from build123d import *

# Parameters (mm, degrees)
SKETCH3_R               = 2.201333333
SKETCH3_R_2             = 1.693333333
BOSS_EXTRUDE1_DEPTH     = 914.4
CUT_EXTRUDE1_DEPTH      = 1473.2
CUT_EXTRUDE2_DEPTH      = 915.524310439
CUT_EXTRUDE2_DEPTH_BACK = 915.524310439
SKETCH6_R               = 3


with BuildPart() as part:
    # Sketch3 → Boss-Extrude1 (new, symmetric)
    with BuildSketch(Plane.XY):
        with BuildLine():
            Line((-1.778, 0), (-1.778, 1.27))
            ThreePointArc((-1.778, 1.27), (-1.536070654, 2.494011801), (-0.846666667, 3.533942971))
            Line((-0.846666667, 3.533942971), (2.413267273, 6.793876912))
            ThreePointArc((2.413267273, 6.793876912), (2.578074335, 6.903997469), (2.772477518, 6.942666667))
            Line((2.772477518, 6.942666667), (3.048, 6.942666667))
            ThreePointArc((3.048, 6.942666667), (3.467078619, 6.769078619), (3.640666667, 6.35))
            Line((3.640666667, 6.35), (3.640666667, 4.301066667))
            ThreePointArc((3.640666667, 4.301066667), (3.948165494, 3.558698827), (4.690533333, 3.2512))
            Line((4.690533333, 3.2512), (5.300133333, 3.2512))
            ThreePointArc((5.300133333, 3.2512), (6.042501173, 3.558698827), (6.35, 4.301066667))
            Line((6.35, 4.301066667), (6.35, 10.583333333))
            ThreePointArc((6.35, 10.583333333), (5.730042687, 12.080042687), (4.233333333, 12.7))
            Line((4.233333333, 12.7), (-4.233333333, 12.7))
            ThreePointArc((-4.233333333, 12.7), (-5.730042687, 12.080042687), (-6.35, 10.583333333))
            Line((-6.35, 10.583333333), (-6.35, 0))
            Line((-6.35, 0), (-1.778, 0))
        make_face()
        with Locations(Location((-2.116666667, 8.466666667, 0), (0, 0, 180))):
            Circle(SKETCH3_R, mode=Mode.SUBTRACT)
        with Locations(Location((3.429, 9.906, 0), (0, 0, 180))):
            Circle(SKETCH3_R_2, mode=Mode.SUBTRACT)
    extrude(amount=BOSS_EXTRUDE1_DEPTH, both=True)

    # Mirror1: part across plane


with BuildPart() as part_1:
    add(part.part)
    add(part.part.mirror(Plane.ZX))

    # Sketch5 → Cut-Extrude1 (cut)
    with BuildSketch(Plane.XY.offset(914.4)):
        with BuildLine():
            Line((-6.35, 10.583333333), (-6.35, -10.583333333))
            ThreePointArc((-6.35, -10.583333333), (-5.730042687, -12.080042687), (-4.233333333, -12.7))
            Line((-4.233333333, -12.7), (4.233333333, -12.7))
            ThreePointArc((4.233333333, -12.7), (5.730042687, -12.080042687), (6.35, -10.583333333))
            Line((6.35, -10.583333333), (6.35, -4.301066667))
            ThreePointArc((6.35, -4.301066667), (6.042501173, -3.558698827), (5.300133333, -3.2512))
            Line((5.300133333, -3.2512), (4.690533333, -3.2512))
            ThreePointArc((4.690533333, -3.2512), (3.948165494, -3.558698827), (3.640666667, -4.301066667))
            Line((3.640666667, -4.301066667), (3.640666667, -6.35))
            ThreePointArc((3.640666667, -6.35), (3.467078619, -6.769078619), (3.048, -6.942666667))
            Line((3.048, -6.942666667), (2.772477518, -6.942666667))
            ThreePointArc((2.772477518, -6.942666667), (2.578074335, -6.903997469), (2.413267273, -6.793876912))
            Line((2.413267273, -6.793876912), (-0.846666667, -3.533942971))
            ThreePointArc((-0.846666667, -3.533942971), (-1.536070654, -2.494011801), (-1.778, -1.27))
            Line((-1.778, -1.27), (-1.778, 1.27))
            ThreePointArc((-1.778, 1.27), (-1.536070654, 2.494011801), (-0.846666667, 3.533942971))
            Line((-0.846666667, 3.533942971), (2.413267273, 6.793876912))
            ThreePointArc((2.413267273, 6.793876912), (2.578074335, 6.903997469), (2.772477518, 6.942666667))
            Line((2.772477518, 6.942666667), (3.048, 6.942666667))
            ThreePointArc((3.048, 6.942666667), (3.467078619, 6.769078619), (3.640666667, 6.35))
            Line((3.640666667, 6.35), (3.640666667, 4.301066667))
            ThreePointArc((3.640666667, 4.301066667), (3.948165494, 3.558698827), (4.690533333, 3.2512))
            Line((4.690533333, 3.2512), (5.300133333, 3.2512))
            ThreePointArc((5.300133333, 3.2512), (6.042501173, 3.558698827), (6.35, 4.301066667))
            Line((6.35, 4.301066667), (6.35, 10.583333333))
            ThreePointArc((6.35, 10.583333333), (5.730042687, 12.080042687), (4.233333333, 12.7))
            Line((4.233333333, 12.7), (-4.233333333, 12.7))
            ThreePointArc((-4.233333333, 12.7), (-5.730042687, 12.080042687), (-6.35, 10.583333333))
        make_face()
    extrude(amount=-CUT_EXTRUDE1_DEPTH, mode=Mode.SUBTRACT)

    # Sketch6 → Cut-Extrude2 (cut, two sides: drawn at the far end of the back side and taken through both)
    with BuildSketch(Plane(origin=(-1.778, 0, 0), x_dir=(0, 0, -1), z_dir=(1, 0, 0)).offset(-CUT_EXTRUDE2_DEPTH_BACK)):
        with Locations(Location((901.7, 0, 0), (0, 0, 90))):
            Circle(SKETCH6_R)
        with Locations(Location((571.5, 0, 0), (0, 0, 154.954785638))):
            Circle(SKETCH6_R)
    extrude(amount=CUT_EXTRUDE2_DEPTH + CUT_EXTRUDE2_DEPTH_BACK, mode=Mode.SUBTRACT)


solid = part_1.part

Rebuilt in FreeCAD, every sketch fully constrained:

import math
import FreeCAD as App
import Part
import Sketcher
Q = App.Units.Quantity

doc = App.newDocument("Part")
params = doc.addObject("Spreadsheet::Sheet", "Params")
for row, (alias, value) in enumerate([
    ("sketch1_radius", "0.02 in"),
    ("sketch1_width", "0.18 in"),
    ("sketch1_height", "0.05 in"),
    ("sketch1_width2", "0.024 in"),
    ("sketch1_width3", "0.09 in"),
    ("pad1_length", "72 in"),
    ("sketch2_radius", "0.02 in"),
    ("sketch2_height", "0.1 in"),
    ("sketch2_width", "0.024 in"),
    ("pocket1_length", "58 in"),
], start=1):
    params.set(f"A{row}", alias)
    params.set(f"B{row}", "=" + value)
    params.setAlias(f"B{row}", alias)

body = doc.addObject("PartDesign::Body", "Body")

sketch1 = body.newObject("Sketcher::SketchObject", "Sketch")
sketch1.AttachmentSupport = (doc.getObject("XY_Plane"), [""])
sketch1.MapMode = "FlatFace"
sketch1.addGeometry(Part.LineSegment(App.Vector(-1.78, 0, 0), App.Vector(-1.78, 1.27, 0)), False)
sketch1.addGeometry(Part.ArcOfCircle(Part.Circle(App.Vector(1.44, 1.27, 0), App.Vector(0, 0, 1), 3.22), math.radians(135), math.radians(180)), False)
sketch1.addGeometry(Part.LineSegment(App.Vector(-0.85, 3.53, 0), App.Vector(2.41, 6.79, 0)), False)
sketch1.addGeometry(Part.ArcOfCircle(Part.Circle(App.Vector(2.77, 6.43, 0), App.Vector(0, 0, 1), 0.51), math.radians(90), math.radians(135)), False)
sketch1.addGeometry(Part.LineSegment(App.Vector(2.77, 6.94, 0), App.Vector(3.05, 6.94, 0)), False)
sketch1.addGeometry(Part.ArcOfCircle(Part.Circle(App.Vector(3.05, 6.35, 0), App.Vector(0, 0, 1), 0.59), math.radians(0), math.radians(90)), False)
sketch1.addGeometry(Part.LineSegment(App.Vector(3.64, 6.35, 0), App.Vector(3.64, 4.3, 0)), False)
sketch1.addGeometry(Part.ArcOfCircle(Part.Circle(App.Vector(4.69, 4.3, 0), App.Vector(0, 0, 1), 1.05), math.radians(180), math.radians(270)), False)
sketch1.addGeometry(Part.LineSegment(App.Vector(4.69, 3.25, 0), App.Vector(5.3, 3.25, 0)), False)
sketch1.addGeometry(Part.ArcOfCircle(Part.Circle(App.Vector(5.3, 4.3, 0), App.Vector(0, 0, 1), 1.05), math.radians(-90), math.radians(0)), False)
sketch1.addGeometry(Part.LineSegment(App.Vector(6.35, 4.3, 0), App.Vector(6.35, 10.58, 0)), False)
sketch1.addGeometry(Part.ArcOfCircle(Part.Circle(App.Vector(4.23, 10.58, 0), App.Vector(0, 0, 1), 2.12), math.radians(0), math.radians(90)), False)
sketch1.addGeometry(Part.LineSegment(App.Vector(4.23, 12.7, 0), App.Vector(-4.23, 12.7, 0)), False)
sketch1.addGeometry(Part.ArcOfCircle(Part.Circle(App.Vector(-4.23, 10.58, 0), App.Vector(0, 0, 1), 2.12), math.radians(90), math.radians(180)), False)
sketch1.addGeometry(Part.LineSegment(App.Vector(-6.35, 10.58, 0), App.Vector(-6.35, 0, 0)), False)
sketch1.addGeometry(Part.LineSegment(App.Vector(-6.35, 0, 0), App.Vector(-1.78, 0, 0)), False)
sketch1.addGeometry(Part.Circle(App.Vector(-2.12, 8.47, 0), App.Vector(0, 0, 1), 2.2), False)
sketch1.addGeometry(Part.Circle(App.Vector(3.43, 9.91, 0), App.Vector(0, 0, 1), 1.69), False)
sketch1.addConstraint(Sketcher.Constraint("Tangent", 0, 2, 1, 2))
sketch1.addConstraint(Sketcher.Constraint("Coincident", 1, 1, 2, 1))
sketch1.addConstraint(Sketcher.Constraint("Tangent", 2, 2, 3, 2))
sketch1.addConstraint(Sketcher.Constraint("Tangent", 3, 1, 4, 1))
sketch1.addConstraint(Sketcher.Constraint("Tangent", 4, 2, 5, 2))
sketch1.addConstraint(Sketcher.Constraint("Tangent", 5, 1, 6, 1))
sketch1.addConstraint(Sketcher.Constraint("Tangent", 6, 2, 7, 1))
sketch1.addConstraint(Sketcher.Constraint("Tangent", 7, 2, 8, 1))
sketch1.addConstraint(Sketcher.Constraint("Tangent", 8, 2, 9, 1))
sketch1.addConstraint(Sketcher.Constraint("Tangent", 9, 2, 10, 1))
sketch1.addConstraint(Sketcher.Constraint("Tangent", 10, 2, 11, 1))
sketch1.addConstraint(Sketcher.Constraint("Tangent", 11, 2, 12, 1))
sketch1.addConstraint(Sketcher.Constraint("Tangent", 12, 2, 13, 1))
sketch1.addConstraint(Sketcher.Constraint("Tangent", 13, 2, 14, 1))
sketch1.addConstraint(Sketcher.Constraint("Coincident", 14, 2, 15, 1))
sketch1.addConstraint(Sketcher.Constraint("Coincident", 15, 2, 0, 1))
sketch1.addConstraint(Sketcher.Constraint("Vertical", 0))
sketch1.addConstraint(Sketcher.Constraint("Horizontal", 4))
sketch1.addConstraint(Sketcher.Constraint("Vertical", 6))
sketch1.addConstraint(Sketcher.Constraint("Horizontal", 8))
sketch1.addConstraint(Sketcher.Constraint("Vertical", 10))
sketch1.addConstraint(Sketcher.Constraint("Horizontal", 12))
sketch1.addConstraint(Sketcher.Constraint("Vertical", 14))
sketch1.addConstraint(Sketcher.Constraint("Horizontal", 15))
sketch1.addConstraint(Sketcher.Constraint("Equal", 7, 9))
sketch1.addConstraint(Sketcher.Constraint("Equal", 11, 13))
sketch1.addConstraint(Sketcher.Constraint("PointOnObject", 14, 2, -1))
sketch1.addConstraint(Sketcher.Constraint("Radius", 3, Q("0.02 in")))
sketch1.addConstraint(Sketcher.Constraint("Angle", 2, Q("45 deg")))
sketch1.addConstraint(Sketcher.Constraint("DistanceX", 15, 1, 15, 2, Q("0.18 in")))
sketch1.addConstraint(Sketcher.Constraint("DistanceY", 0, 1, 0, 2, Q("0.05 in")))
sketch1.addConstraint(Sketcher.Constraint("DistanceY", -1, 1, 11, 2, Q("0.5 in")))
sketch1.addConstraint(Sketcher.Constraint("DistanceY", 1, 3, 5, 3, Q("0.2 in")))
sketch1.addConstraint(Sketcher.Constraint("DistanceX", 8, 1, 8, 2, Q("0.024 in")))
sketch1.addConstraint(Sketcher.Constraint("DistanceX", -1, 1, 5, 3, Q("0.12 in")))
sketch1.addConstraint(Sketcher.Constraint("DistanceY", -1, 1, 17, 3, Q("0.39 in")))
sketch1.addConstraint(Sketcher.Constraint("DistanceX", 0, 2, -1, 1, Q("0.07 in")))
sketch1.addConstraint(Sketcher.Constraint("DistanceX", -1, 1, 9, 2, Q("0.25 in")))
sketch1.addConstraint(Sketcher.Constraint("DistanceX", 1, 3, 11, 3, Q("0.11 in")))
sketch1.addConstraint(Sketcher.Constraint("DistanceY", 3, 3, 16, 3, Q("0.08 in")))
sketch1.addConstraint(Sketcher.Constraint("DistanceX", 16, 3, 11, 3, Q("0.25 in")))
sketch1.addConstraint(Sketcher.Constraint("DistanceX", 1, 1, 1, 3, Q("0.09 in")))
sketch1.addConstraint(Sketcher.Constraint("DistanceX", -1, 1, 17, 3, Q("0.135 in")))
sketch1.addConstraint(Sketcher.Constraint("DistanceY", -1, 1, 7, 2, Q("0.128 in")))
sketch1.addConstraint(Sketcher.Constraint("DistanceY", 7, 3, 3, 3, Q("0.084 in")))
sketch1.addConstraint(Sketcher.Constraint("DistanceX", 1, 3, 7, 3, Q("0.128 in")))
sketch1.addConstraint(Sketcher.Constraint("Diameter", 16, Q("4.402667 mm")))
sketch1.addConstraint(Sketcher.Constraint("Diameter", 17, Q("3.386667 mm")))
sketch1.setExpression("Constraints[27]", "Params.sketch1_radius")
sketch1.setExpression("Constraints[29]", "Params.sketch1_width")
sketch1.setExpression("Constraints[30]", "Params.sketch1_height")
sketch1.setExpression("Constraints[33]", "Params.sketch1_width2")
sketch1.setExpression("Constraints[41]", "Params.sketch1_width3")
pad1 = body.newObject("PartDesign::Pad", "Pad")
pad1.Profile = sketch1
pad1.setExpression("Length", "Params.pad1_length")
pad1.Midplane = True
body2 = doc.addObject("PartDesign::Body", "Body001")
doc.recompute()

body2.BaseFeature = body
doc.recompute()

mirroring = doc.addObject("Part::Mirroring", "Mirroring")
mirroring.Source = body
mirroring.Base = App.Vector(0, 0, 0)
mirroring.Normal = App.Vector(0, 1, 0)
body3 = doc.addObject("PartDesign::Body", "Body002")
body3.BaseFeature = mirroring
boolean = body2.newObject("PartDesign::Boolean", "Boolean")
boolean.Type = "Fuse"
boolean.addObjects([body3])
doc.recompute()

sketch2 = body2.newObject("Sketcher::SketchObject", "Sketch001")
sketch2.AttachmentSupport = (doc.getObject("XY_Plane001"), [""])
sketch2.MapMode = "FlatFace"
sketch2.AttachmentOffset = App.Placement(App.Vector(0, 0, 36 * 25.4), App.Rotation())
sketch2.addGeometry(Part.LineSegment(App.Vector(-6.35, 10.58, 0), App.Vector(-6.35, -10.58, 0)), False)
sketch2.addGeometry(Part.ArcOfCircle(Part.Circle(App.Vector(-4.23, -10.58, 0), App.Vector(0, 0, 1), 2.12), math.radians(180), math.radians(270)), False)
sketch2.addGeometry(Part.LineSegment(App.Vector(-4.23, -12.7, 0), App.Vector(4.23, -12.7, 0)), False)
sketch2.addGeometry(Part.ArcOfCircle(Part.Circle(App.Vector(4.23, -10.58, 0), App.Vector(0, 0, 1), 2.12), math.radians(-90), math.radians(0)), False)
sketch2.addGeometry(Part.LineSegment(App.Vector(6.35, -10.58, 0), App.Vector(6.35, -4.3, 0)), False)
sketch2.addGeometry(Part.ArcOfCircle(Part.Circle(App.Vector(5.3, -4.3, 0), App.Vector(0, 0, 1), 1.05), math.radians(0), math.radians(90)), False)
sketch2.addGeometry(Part.LineSegment(App.Vector(5.3, -3.25, 0), App.Vector(4.69, -3.25, 0)), False)
sketch2.addGeometry(Part.ArcOfCircle(Part.Circle(App.Vector(4.69, -4.3, 0), App.Vector(0, 0, 1), 1.05), math.radians(90), math.radians(180)), False)
sketch2.addGeometry(Part.LineSegment(App.Vector(3.64, -4.3, 0), App.Vector(3.64, -6.35, 0)), False)
sketch2.addGeometry(Part.ArcOfCircle(Part.Circle(App.Vector(3.05, -6.35, 0), App.Vector(0, 0, 1), 0.59), math.radians(-90), math.radians(0)), False)
sketch2.addGeometry(Part.LineSegment(App.Vector(3.05, -6.94, 0), App.Vector(2.77, -6.94, 0)), False)
sketch2.addGeometry(Part.ArcOfCircle(Part.Circle(App.Vector(2.77, -6.43, 0), App.Vector(0, 0, 1), 0.51), math.radians(-135), math.radians(-90)), False)
sketch2.addGeometry(Part.LineSegment(App.Vector(2.41, -6.79, 0), App.Vector(-0.85, -3.53, 0)), False)
sketch2.addGeometry(Part.ArcOfCircle(Part.Circle(App.Vector(1.44, -1.27, 0), App.Vector(0, 0, 1), 3.22), math.radians(-180), math.radians(-135)), False)
sketch2.addGeometry(Part.LineSegment(App.Vector(-1.78, -1.27, 0), App.Vector(-1.78, 1.27, 0)), False)
sketch2.addGeometry(Part.ArcOfCircle(Part.Circle(App.Vector(1.44, 1.27, 0), App.Vector(0, 0, 1), 3.22), math.radians(135), math.radians(180)), False)
sketch2.addGeometry(Part.LineSegment(App.Vector(-0.85, 3.53, 0), App.Vector(2.41, 6.79, 0)), False)
sketch2.addGeometry(Part.ArcOfCircle(Part.Circle(App.Vector(2.77, 6.43, 0), App.Vector(0, 0, 1), 0.51), math.radians(90), math.radians(135)), False)
sketch2.addGeometry(Part.LineSegment(App.Vector(2.77, 6.94, 0), App.Vector(3.05, 6.94, 0)), False)
sketch2.addGeometry(Part.ArcOfCircle(Part.Circle(App.Vector(3.05, 6.35, 0), App.Vector(0, 0, 1), 0.59), math.radians(0), math.radians(90)), False)
sketch2.addGeometry(Part.LineSegment(App.Vector(3.64, 6.35, 0), App.Vector(3.64, 4.3, 0)), False)
sketch2.addGeometry(Part.ArcOfCircle(Part.Circle(App.Vector(4.69, 4.3, 0), App.Vector(0, 0, 1), 1.05), math.radians(180), math.radians(270)), False)
sketch2.addGeometry(Part.LineSegment(App.Vector(4.69, 3.25, 0), App.Vector(5.3, 3.25, 0)), False)
sketch2.addGeometry(Part.ArcOfCircle(Part.Circle(App.Vector(5.3, 4.3, 0), App.Vector(0, 0, 1), 1.05), math.radians(-90), math.radians(0)), False)
sketch2.addGeometry(Part.LineSegment(App.Vector(6.35, 4.3, 0), App.Vector(6.35, 10.58, 0)), False)
sketch2.addGeometry(Part.ArcOfCircle(Part.Circle(App.Vector(4.23, 10.58, 0), App.Vector(0, 0, 1), 2.12), math.radians(0), math.radians(90)), False)
sketch2.addGeometry(Part.LineSegment(App.Vector(4.23, 12.7, 0), App.Vector(-4.23, 12.7, 0)), False)
sketch2.addGeometry(Part.ArcOfCircle(Part.Circle(App.Vector(-4.23, 10.58, 0), App.Vector(0, 0, 1), 2.12), math.radians(90), math.radians(180)), False)
sketch2.addConstraint(Sketcher.Constraint("Tangent", 0, 2, 1, 1))
sketch2.addConstraint(Sketcher.Constraint("Tangent", 1, 2, 2, 1))
sketch2.addConstraint(Sketcher.Constraint("Tangent", 2, 2, 3, 1))
sketch2.addConstraint(Sketcher.Constraint("Tangent", 3, 2, 4, 1))
sketch2.addConstraint(Sketcher.Constraint("Tangent", 4, 2, 5, 1))
sketch2.addConstraint(Sketcher.Constraint("Tangent", 5, 2, 6, 1))
sketch2.addConstraint(Sketcher.Constraint("Tangent", 6, 2, 7, 1))
sketch2.addConstraint(Sketcher.Constraint("Tangent", 7, 2, 8, 1))
sketch2.addConstraint(Sketcher.Constraint("Tangent", 8, 2, 9, 2))
sketch2.addConstraint(Sketcher.Constraint("Tangent", 9, 1, 10, 1))
sketch2.addConstraint(Sketcher.Constraint("Tangent", 10, 2, 11, 2))
sketch2.addConstraint(Sketcher.Constraint("Tangent", 11, 1, 12, 1))
sketch2.addConstraint(Sketcher.Constraint("Coincident", 12, 2, 13, 2))
sketch2.addConstraint(Sketcher.Constraint("Tangent", 13, 1, 14, 1))
sketch2.addConstraint(Sketcher.Constraint("Tangent", 14, 2, 15, 2))
sketch2.addConstraint(Sketcher.Constraint("Coincident", 15, 1, 16, 1))
sketch2.addConstraint(Sketcher.Constraint("Tangent", 16, 2, 17, 2))
sketch2.addConstraint(Sketcher.Constraint("Tangent", 17, 1, 18, 1))
sketch2.addConstraint(Sketcher.Constraint("Tangent", 18, 2, 19, 2))
sketch2.addConstraint(Sketcher.Constraint("Tangent", 19, 1, 20, 1))
sketch2.addConstraint(Sketcher.Constraint("Tangent", 20, 2, 21, 1))
sketch2.addConstraint(Sketcher.Constraint("Tangent", 21, 2, 22, 1))
sketch2.addConstraint(Sketcher.Constraint("Tangent", 22, 2, 23, 1))
sketch2.addConstraint(Sketcher.Constraint("Tangent", 23, 2, 24, 1))
sketch2.addConstraint(Sketcher.Constraint("Tangent", 24, 2, 25, 1))
sketch2.addConstraint(Sketcher.Constraint("Tangent", 25, 2, 26, 1))
sketch2.addConstraint(Sketcher.Constraint("Tangent", 26, 2, 27, 1))
sketch2.addConstraint(Sketcher.Constraint("Tangent", 27, 2, 0, 1))
sketch2.addConstraint(Sketcher.Constraint("Vertical", 0))
sketch2.addConstraint(Sketcher.Constraint("Horizontal", 2))
sketch2.addConstraint(Sketcher.Constraint("Vertical", 4))
sketch2.addConstraint(Sketcher.Constraint("Horizontal", 6))
sketch2.addConstraint(Sketcher.Constraint("Vertical", 8))
sketch2.addConstraint(Sketcher.Constraint("Horizontal", 10))
sketch2.addConstraint(Sketcher.Constraint("Vertical", 14))
sketch2.addConstraint(Sketcher.Constraint("Horizontal", 18))
sketch2.addConstraint(Sketcher.Constraint("Vertical", 20))
sketch2.addConstraint(Sketcher.Constraint("Horizontal", 22))
sketch2.addConstraint(Sketcher.Constraint("Vertical", 24))
sketch2.addConstraint(Sketcher.Constraint("Horizontal", 26))
sketch2.addConstraint(Sketcher.Constraint("Equal", 1, 3))
sketch2.addConstraint(Sketcher.Constraint("Equal", 5, 7))
sketch2.addConstraint(Sketcher.Constraint("Equal", 13, 15))
sketch2.addConstraint(Sketcher.Constraint("Equal", 11, 17))
sketch2.addConstraint(Sketcher.Constraint("Equal", 9, 19))
sketch2.addConstraint(Sketcher.Constraint("Equal", 7, 21))
sketch2.addConstraint(Sketcher.Constraint("Equal", 21, 23))
sketch2.addConstraint(Sketcher.Constraint("Equal", 3, 25))
sketch2.addConstraint(Sketcher.Constraint("Equal", 25, 27))
sketch2.addConstraint(Sketcher.Constraint("Symmetric", 1, 3, 25, 3, -1, 1))
sketch2.addConstraint(Sketcher.Constraint("Symmetric", 11, 3, 17, 3, -1))
sketch2.addConstraint(Sketcher.Constraint("Symmetric", 7, 3, 21, 3, -1))
sketch2.addConstraint(Sketcher.Constraint("Symmetric", 12, 2, 15, 1, -1))
sketch2.addConstraint(Sketcher.Constraint("Perpendicular", 12, 16))
sketch2.addConstraint(Sketcher.Constraint("Vertical", 5, 3, 23, 3))
sketch2.addConstraint(Sketcher.Constraint("Radius", 11, Q("0.02 in")))
sketch2.addConstraint(Sketcher.Constraint("DistanceY", 14, 1, 14, 2, Q("0.1 in")))
sketch2.addConstraint(Sketcher.Constraint("DistanceY", 1, 2, -1, 1, Q("0.5 in")))
sketch2.addConstraint(Sketcher.Constraint("DistanceY", 9, 3, 13, 3, Q("0.2 in")))
sketch2.addConstraint(Sketcher.Constraint("DistanceX", 6, 2, 6, 1, Q("0.024 in")))
sketch2.addConstraint(Sketcher.Constraint("DistanceX", -1, 1, 9, 3, Q("0.12 in")))
sketch2.addConstraint(Sketcher.Constraint("DistanceX", 0, 2, -1, 1, Q("0.25 in")))
sketch2.addConstraint(Sketcher.Constraint("DistanceX", 13, 1, -1, 1, Q("0.07 in")))
sketch2.addConstraint(Sketcher.Constraint("DistanceX", 13, 3, 3, 3, Q("0.11 in")))
sketch2.addConstraint(Sketcher.Constraint("DistanceX", 12, 2, 13, 3, Q("0.09 in")))
sketch2.addConstraint(Sketcher.Constraint("DistanceY", 5, 2, -1, 1, Q("0.128 in")))
sketch2.addConstraint(Sketcher.Constraint("DistanceX", 3, 3, 5, 3, Q("0.042 in")))
sketch2.addConstraint(Sketcher.Constraint("DistanceY", 11, 3, 7, 3, Q("0.084 in")))
sketch2.setExpression("Constraints[55]", "Params.sketch2_radius")
sketch2.setExpression("Constraints[56]", "Params.sketch2_height")
sketch2.setExpression("Constraints[59]", "Params.sketch2_width")
pocket1 = body2.newObject("PartDesign::Pocket", "Pocket")
pocket1.Profile = sketch2
pocket1.setExpression("Length", "Params.pocket1_length")

sketch3 = body2.newObject("Sketcher::SketchObject", "Sketch002")
sketch3.AttachmentSupport = (doc.getObject("YZ_Plane001"), [""])
sketch3.MapMode = "FlatFace"
sketch3.AttachmentOffset = App.Placement(App.Vector(0, 0, -0.07 * 25.4), App.Rotation())
sketch3.addGeometry(Part.Circle(App.Vector(0, -901.7, 0), App.Vector(0, 0, 1), 3), False)
sketch3.addGeometry(Part.Circle(App.Vector(0, -571.5, 0), App.Vector(0, 0, 1), 3), False)
sketch3.addConstraint(Sketcher.Constraint("Equal", 0, 1))
sketch3.addConstraint(Sketcher.Constraint("PointOnObject", 0, 3, -2))
sketch3.addConstraint(Sketcher.Constraint("PointOnObject", 1, 3, -2))
sketch3.addConstraint(Sketcher.Constraint("DistanceY", 0, 3, 1, 3, Q("13 in")))
sketch3.addConstraint(Sketcher.Constraint("DistanceY", 0, 3, -1, 1, Q("35.5 in")))
sketch3.addConstraint(Sketcher.Constraint("Diameter", 0, Q("6 mm")))
pocket2 = body2.newObject("PartDesign::Pocket", "Pocket001")
pocket2.Profile = sketch3
pocket2.Type = "ThroughAll"
pocket2.Midplane = True
mirroring.Visibility = False

doc.recompute()
